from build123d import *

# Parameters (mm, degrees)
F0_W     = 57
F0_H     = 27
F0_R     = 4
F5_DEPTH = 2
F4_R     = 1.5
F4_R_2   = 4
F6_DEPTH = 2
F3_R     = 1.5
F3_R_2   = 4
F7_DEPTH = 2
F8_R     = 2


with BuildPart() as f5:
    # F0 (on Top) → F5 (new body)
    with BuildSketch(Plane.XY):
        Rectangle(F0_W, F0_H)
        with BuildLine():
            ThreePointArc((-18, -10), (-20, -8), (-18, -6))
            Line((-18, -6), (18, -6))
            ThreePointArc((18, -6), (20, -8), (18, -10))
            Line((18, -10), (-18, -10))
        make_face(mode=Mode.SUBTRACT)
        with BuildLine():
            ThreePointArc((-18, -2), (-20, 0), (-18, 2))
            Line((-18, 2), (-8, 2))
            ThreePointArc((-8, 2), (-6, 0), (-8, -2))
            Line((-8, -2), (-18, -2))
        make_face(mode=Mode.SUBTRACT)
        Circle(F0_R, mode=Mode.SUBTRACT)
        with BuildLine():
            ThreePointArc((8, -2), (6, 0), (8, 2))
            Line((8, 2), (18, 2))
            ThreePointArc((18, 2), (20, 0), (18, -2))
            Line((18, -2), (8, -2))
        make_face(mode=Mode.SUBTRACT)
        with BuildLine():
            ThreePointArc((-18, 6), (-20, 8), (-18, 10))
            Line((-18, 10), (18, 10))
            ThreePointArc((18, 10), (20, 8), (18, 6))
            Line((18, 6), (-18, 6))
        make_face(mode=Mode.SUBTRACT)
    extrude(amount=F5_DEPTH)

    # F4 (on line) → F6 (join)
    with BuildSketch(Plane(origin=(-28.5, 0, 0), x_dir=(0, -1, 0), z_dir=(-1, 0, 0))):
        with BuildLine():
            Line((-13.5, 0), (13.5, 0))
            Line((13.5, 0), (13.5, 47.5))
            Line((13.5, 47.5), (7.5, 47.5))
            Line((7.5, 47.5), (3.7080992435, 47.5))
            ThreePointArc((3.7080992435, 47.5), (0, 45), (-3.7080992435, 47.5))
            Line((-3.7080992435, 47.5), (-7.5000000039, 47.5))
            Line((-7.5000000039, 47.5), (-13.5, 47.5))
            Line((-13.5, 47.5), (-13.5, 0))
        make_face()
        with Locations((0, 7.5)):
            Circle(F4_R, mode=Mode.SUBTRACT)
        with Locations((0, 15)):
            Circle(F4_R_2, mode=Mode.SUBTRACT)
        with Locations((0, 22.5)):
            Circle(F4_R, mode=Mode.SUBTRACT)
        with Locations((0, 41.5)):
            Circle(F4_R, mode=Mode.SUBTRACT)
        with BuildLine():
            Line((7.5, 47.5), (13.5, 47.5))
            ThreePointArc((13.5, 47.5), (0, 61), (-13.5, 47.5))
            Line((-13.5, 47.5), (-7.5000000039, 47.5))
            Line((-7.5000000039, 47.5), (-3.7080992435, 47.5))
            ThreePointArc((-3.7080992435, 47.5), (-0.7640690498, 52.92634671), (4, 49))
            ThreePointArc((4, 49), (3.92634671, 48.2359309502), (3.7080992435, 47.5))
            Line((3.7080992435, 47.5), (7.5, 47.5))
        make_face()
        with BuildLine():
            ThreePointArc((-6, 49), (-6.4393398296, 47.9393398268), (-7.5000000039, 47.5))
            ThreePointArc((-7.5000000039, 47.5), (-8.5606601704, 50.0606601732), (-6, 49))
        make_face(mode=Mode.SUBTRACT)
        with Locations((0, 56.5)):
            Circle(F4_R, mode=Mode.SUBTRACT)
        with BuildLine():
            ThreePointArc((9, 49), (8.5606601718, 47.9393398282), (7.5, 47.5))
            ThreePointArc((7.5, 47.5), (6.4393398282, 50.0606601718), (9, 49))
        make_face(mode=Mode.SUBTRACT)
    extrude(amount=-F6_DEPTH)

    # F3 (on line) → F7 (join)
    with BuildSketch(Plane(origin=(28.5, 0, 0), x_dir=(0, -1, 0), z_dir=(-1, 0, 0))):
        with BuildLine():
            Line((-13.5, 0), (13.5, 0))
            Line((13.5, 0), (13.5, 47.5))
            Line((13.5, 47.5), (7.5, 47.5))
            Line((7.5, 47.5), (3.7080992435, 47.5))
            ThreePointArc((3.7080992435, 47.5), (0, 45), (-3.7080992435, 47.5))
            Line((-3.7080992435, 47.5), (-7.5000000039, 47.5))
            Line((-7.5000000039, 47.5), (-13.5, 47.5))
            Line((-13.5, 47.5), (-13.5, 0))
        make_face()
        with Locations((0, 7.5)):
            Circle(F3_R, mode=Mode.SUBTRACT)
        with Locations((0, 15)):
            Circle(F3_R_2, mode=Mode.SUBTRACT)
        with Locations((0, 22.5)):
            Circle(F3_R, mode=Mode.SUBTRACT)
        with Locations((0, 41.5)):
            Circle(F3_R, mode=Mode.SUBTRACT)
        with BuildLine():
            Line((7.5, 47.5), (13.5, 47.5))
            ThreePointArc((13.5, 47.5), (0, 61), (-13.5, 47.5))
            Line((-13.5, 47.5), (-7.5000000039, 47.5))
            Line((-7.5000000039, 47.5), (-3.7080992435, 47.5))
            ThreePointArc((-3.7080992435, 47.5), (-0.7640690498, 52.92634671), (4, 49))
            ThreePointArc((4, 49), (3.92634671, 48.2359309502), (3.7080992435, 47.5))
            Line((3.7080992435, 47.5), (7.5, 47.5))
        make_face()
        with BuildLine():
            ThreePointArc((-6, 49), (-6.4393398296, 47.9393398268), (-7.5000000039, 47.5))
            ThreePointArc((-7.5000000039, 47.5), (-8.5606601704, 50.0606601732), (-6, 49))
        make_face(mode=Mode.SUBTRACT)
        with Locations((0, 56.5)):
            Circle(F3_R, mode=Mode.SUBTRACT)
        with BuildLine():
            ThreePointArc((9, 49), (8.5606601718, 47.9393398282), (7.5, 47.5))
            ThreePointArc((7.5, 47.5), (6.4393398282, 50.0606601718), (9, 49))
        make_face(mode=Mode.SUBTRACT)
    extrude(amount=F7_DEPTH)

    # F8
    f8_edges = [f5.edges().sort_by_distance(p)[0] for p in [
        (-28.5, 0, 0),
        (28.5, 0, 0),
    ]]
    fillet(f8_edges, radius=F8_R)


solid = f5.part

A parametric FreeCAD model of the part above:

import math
import FreeCAD as App
import Part
import Sketcher
Q = App.Units.Quantity


def edges_at(feature, points):
    """Names of the edges that pass closest to the given points."""
    edges = feature.Shape.Edges
    near = lambda p: min(range(len(edges)), key=lambda i: edges[i].distToShape(Part.Vertex(*p))[0])
    return sorted({f"Edge{near(p) + 1}" for p in points})

doc = App.newDocument("Part")
body = doc.addObject("PartDesign::Body", "Body")

sketch1 = body.newObject("Sketcher::SketchObject", "Sketch")
sketch1.AttachmentSupport = (doc.getObject("XY_Plane"), [""])
sketch1.MapMode = "FlatFace"
sketch1.addGeometry(Part.LineSegment(App.Vector(-28.5, 13.5, 0), App.Vector(-28.5, -13.5, 0)), False)
sketch1.addGeometry(Part.LineSegment(App.Vector(-28.5, -13.5, 0), App.Vector(28.5, -13.5, 0)), False)
sketch1.addGeometry(Part.LineSegment(App.Vector(28.5, -13.5, 0), App.Vector(28.5, 13.5, 0)), False)
sketch1.addGeometry(Part.LineSegment(App.Vector(28.5, 13.5, 0), App.Vector(-28.5, 13.5, 0)), False)
sketch1.addGeometry(Part.LineSegment(App.Vector(18, -10, 0), App.Vector(-18, -10, 0)), False)
sketch1.addGeometry(Part.ArcOfCircle(Part.Circle(App.Vector(-18, -8, 0), App.Vector(0, 0, 1), 2), math.radians(90), math.radians(270)), False)
sketch1.addGeometry(Part.LineSegment(App.Vector(-18, -6, 0), App.Vector(18, -6, 0)), False)
sketch1.addGeometry(Part.ArcOfCircle(Part.Circle(App.Vector(18, -8, 0), App.Vector(0, 0, 1), 2), math.radians(-90), math.radians(90)), False)
sketch1.addGeometry(Part.LineSegment(App.Vector(-8, -2, 0), App.Vector(-18, -2, 0)), False)
sketch1.addGeometry(Part.ArcOfCircle(Part.Circle(App.Vector(-18, 0, 0), App.Vector(0, 0, 1), 2), math.radians(90), math.radians(270)), False)
sketch1.addGeometry(Part.LineSegment(App.Vector(-18, 2, 0), App.Vector(-8, 2, 0)), False)
sketch1.addGeometry(Part.ArcOfCircle(Part.Circle(App.Vector(-8, 0, 0), App.Vector(0, 0, 1), 2), math.radians(-90), math.radians(90)), False)
sketch1.addGeometry(Part.Circle(App.Vector(0, 0, 0), App.Vector(0, 0, 1), 4), False)
sketch1.addGeometry(Part.LineSegment(App.Vector(18, -2, 0), App.Vector(8, -2, 0)), False)
sketch1.addGeometry(Part.ArcOfCircle(Part.Circle(App.Vector(8, 0, 0), App.Vector(0, 0, 1), 2), math.radians(90), math.radians(270)), False)
sketch1.addGeometry(Part.LineSegment(App.Vector(8, 2, 0), App.Vector(18, 2, 0)), False)
sketch1.addGeometry(Part.ArcOfCircle(Part.Circle(App.Vector(18, 0, 0), App.Vector(0, 0, 1), 2), math.radians(-90), math.radians(90)), False)
sketch1.addGeometry(Part.LineSegment(App.Vector(18, 6, 0), App.Vector(-18, 6, 0)), False)
sketch1.addGeometry(Part.ArcOfCircle(Part.Circle(App.Vector(-18, 8, 0), App.Vector(0, 0, 1), 2), math.radians(90), math.radians(270)), False)
sketch1.addGeometry(Part.LineSegment(App.Vector(-18, 10, 0), App.Vector(18, 10, 0)), False)
sketch1.addGeometry(Part.ArcOfCircle(Part.Circle(App.Vector(18, 8, 0), App.Vector(0, 0, 1), 2), math.radians(-90), math.radians(90)), False)
sketch1.addConstraint(Sketcher.Constraint("Coincident", 0, 2, 1, 1))
sketch1.addConstraint(Sketcher.Constraint("Coincident", 1, 2, 2, 1))
sketch1.addConstraint(Sketcher.Constraint("Coincident", 2, 2, 3, 1))
sketch1.addConstraint(Sketcher.Constraint("Coincident", 3, 2, 0, 1))
sketch1.addConstraint(Sketcher.Constraint("Tangent", 4, 2, 5, 2))
sketch1.addConstraint(Sketcher.Constraint("Tangent", 5, 1, 6, 1))
sketch1.addConstraint(Sketcher.Constraint("Tangent", 6, 2, 7, 2))
sketch1.addConstraint(Sketcher.Constraint("Tangent", 7, 1, 4, 1))
sketch1.addConstraint(Sketcher.Constraint("Tangent", 8, 2, 9, 2))
sketch1.addConstraint(Sketcher.Constraint("Tangent", 9, 1, 10, 1))
sketch1.addConstraint(Sketcher.Constraint("Tangent", 10, 2, 11, 2))
sketch1.addConstraint(Sketcher.Constraint("Tangent", 11, 1, 8, 1))
sketch1.addConstraint(Sketcher.Constraint("Tangent", 13, 2, 14, 2))
sketch1.addConstraint(Sketcher.Constraint("Tangent", 14, 1, 15, 1))
sketch1.addConstraint(Sketcher.Constraint("Tangent", 15, 2, 16, 2))
sketch1.addConstraint(Sketcher.Constraint("Tangent", 16, 1, 13, 1))
sketch1.addConstraint(Sketcher.Constraint("Tangent", 17, 2, 18, 2))
sketch1.addConstraint(Sketcher.Constraint("Tangent", 18, 1, 19, 1))
sketch1.addConstraint(Sketcher.Constraint("Tangent", 19, 2, 20, 2))
sketch1.addConstraint(Sketcher.Constraint("Tangent", 20, 1, 17, 1))
sketch1.addConstraint(Sketcher.Constraint("Vertical", 0))
sketch1.addConstraint(Sketcher.Constraint("Horizontal", 1))
sketch1.addConstraint(Sketcher.Constraint("Vertical", 2))
sketch1.addConstraint(Sketcher.Constraint("Horizontal", 3))
sketch1.addConstraint(Sketcher.Constraint("Horizontal", 4))
sketch1.addConstraint(Sketcher.Constraint("Horizontal", 6))
sketch1.addConstraint(Sketcher.Constraint("Horizontal", 8))
sketch1.addConstraint(Sketcher.Constraint("Horizontal", 10))
sketch1.addConstraint(Sketcher.Constraint("Horizontal", 13))
sketch1.addConstraint(Sketcher.Constraint("Horizontal", 15))
sketch1.addConstraint(Sketcher.Constraint("Horizontal", 17))
sketch1.addConstraint(Sketcher.Constraint("Horizontal", 19))
sketch1.addConstraint(Sketcher.Constraint("Coincident", 12, 3, -1, 1))
sketch1.addConstraint(Sketcher.Constraint("Equal", 7, 9))
sketch1.addConstraint(Sketcher.Constraint("Equal", 11, 14))
sketch1.addConstraint(Sketcher.Constraint("Equal", 16, 18))
sketch1.addConstraint(Sketcher.Constraint("Symmetric", 11, 3, 14, 3, -1, 1))
sketch1.addConstraint(Sketcher.Constraint("Symmetric", 7, 3, 18, 3, -1, 1))
sketch1.addConstraint(Sketcher.Constraint("Symmetric", 0, 2, 2, 2, -1, 1))
sketch1.addConstraint(Sketcher.Constraint("Symmetric", 9, 3, 16, 3, -2))
sketch1.addConstraint(Sketcher.Constraint("Vertical", 5, 3, 9, 3))
sketch1.addConstraint(Sketcher.Constraint("Vertical", 7, 3, 16, 3))
sketch1.addConstraint(Sketcher.Constraint("Vertical", 16, 3, 20, 3))
sketch1.addConstraint(Sketcher.Constraint("Diameter", 12, Q("8 mm")))
sketch1.addConstraint(Sketcher.Constraint("Radius", 5, Q("2 mm")))
sketch1.addConstraint(Sketcher.Constraint("DistanceX", 1, 1, 1, 2, Q("57 mm")))
sketch1.addConstraint(Sketcher.Constraint("DistanceX", 4, 2, 4, 1, Q("36 mm")))
sketch1.addConstraint(Sketcher.Constraint("DistanceX", 8, 2, 8, 1, Q("10 mm")))
sketch1.addConstraint(Sketcher.Constraint("DistanceY", 0, 2, 0, 1, Q("27 mm")))
sketch1.addConstraint(Sketcher.Constraint("DistanceY", 5, 3, -1, 1, Q("8 mm")))
pad1 = body.newObject("PartDesign::Pad", "Pad")
pad1.Profile = sketch1
pad1.Length = 2

sketch2 = body.newObject("Sketcher::SketchObject", "Sketch001")
sketch2.AttachmentSupport = (doc.getObject("YZ_Plane"), [""])
sketch2.MapMode = "FlatFace"
sketch2.AttachmentOffset = App.Placement(App.Vector(0, 0, -28.5), App.Rotation())
sketch2.addGeometry(Part.LineSegment(App.Vector(13.5, 0, 0), App.Vector(-13.5, 0, 0)), False)
sketch2.addGeometry(Part.LineSegment(App.Vector(-13.5, 0, 0), App.Vector(-13.5, 47.5, 0)), False)
sketch2.addGeometry(Part.ArcOfCircle(Part.Circle(App.Vector(0, 47.5, 0), App.Vector(0, 0, 1), 13.5), math.radians(0), math.radians(180)), False)
sketch2.addGeometry(Part.LineSegment(App.Vector(13.5, 47.5, 0), App.Vector(13.5, 0, 0)), False)
sketch2.addGeometry(Part.Circle(App.Vector(0, 7.5, 0), App.Vector(0, 0, 1), 1.5), False)
sketch2.addGeometry(Part.Circle(App.Vector(0, 15, 0), App.Vector(0, 0, 1), 4), False)
sketch2.addGeometry(Part.Circle(App.Vector(0, 22.5, 0), App.Vector(0, 0, 1), 1.5), False)
sketch2.addGeometry(Part.ArcOfCircle(Part.Circle(App.Vector(7.5, 49, 0), App.Vector(0, 0, 1), 1.5), math.radians(-90), math.radians(180)), False)
sketch2.addGeometry(Part.ArcOfCircle(Part.Circle(App.Vector(7.5, 49, 0), App.Vector(0, 0, 1), 1.5), math.radians(180), math.radians(270)), False)
sketch2.addGeometry(Part.Circle(App.Vector(0, 41.5, 0), App.Vector(0, 0, 1), 1.5), False)
sketch2.addGeometry(Part.ArcOfCircle(Part.Circle(App.Vector(0, 49, 0), App.Vector(0, 0, 1), 4), math.radians(-158), math.radians(-22)), False)
sketch2.addGeometry(Part.ArcOfCircle(Part.Circle(App.Vector(0, 49, 0), App.Vector(0, 0, 1), 4), math.radians(-22), math.radians(180)), False)
sketch2.addGeometry(Part.ArcOfCircle(Part.Circle(App.Vector(0, 49, 0), App.Vector(0, 0, 1), 4), math.radians(180), math.radians(202)), False)
sketch2.addGeometry(Part.Circle(App.Vector(0, 56.5, 0), App.Vector(0, 0, 1), 1.5), False)
sketch2.addGeometry(Part.ArcOfCircle(Part.Circle(App.Vector(-7.5, 49, 0), App.Vector(0, 0, 1), 1.5), math.radians(-90), math.radians(180)), False)
sketch2.addGeometry(Part.ArcOfCircle(Part.Circle(App.Vector(-7.5, 49, 0), App.Vector(0, 0, 1), 1.5), math.radians(180), math.radians(270)), False)
sketch2.addConstraint(Sketcher.Constraint("Coincident", 0, 2, 1, 1))
sketch2.addConstraint(Sketcher.Constraint("Tangent", 1, 2, 2, 2))
sketch2.addConstraint(Sketcher.Constraint("Tangent", 2, 1, 3, 1))
sketch2.addConstraint(Sketcher.Constraint("Coincident", 3, 2, 0, 1))
sketch2.addConstraint(Sketcher.Constraint("Tangent", 7, 1, 8, 2))
sketch2.addConstraint(Sketcher.Constraint("Coincident", 8, 1, 7, 2))
sketch2.addConstraint(Sketcher.Constraint("Tangent", 10, 2, 11, 1))
sketch2.addConstraint(Sketcher.Constraint("Tangent", 11, 2, 12, 1))
sketch2.addConstraint(Sketcher.Constraint("Tangent", 12, 2, 10, 1))
sketch2.addConstraint(Sketcher.Constraint("Tangent", 14, 1, 15, 2))
sketch2.addConstraint(Sketcher.Constraint("Coincident", 15, 1, 14, 2))
sketch2.addConstraint(Sketcher.Constraint("Horizontal", 0))
sketch2.addConstraint(Sketcher.Constraint("Vertical", 1))
sketch2.addConstraint(Sketcher.Constraint("Vertical", 3))
sketch2.addConstraint(Sketcher.Constraint("Equal", 4, 6))
sketch2.addConstraint(Sketcher.Constraint("Equal", 6, 7))
sketch2.addConstraint(Sketcher.Constraint("Equal", 8, 9))
sketch2.addConstraint(Sketcher.Constraint("Equal", 5, 10))
sketch2.addConstraint(Sketcher.Constraint("Equal", 9, 13))
sketch2.addConstraint(Sketcher.Constraint("Equal", 13, 14))
sketch2.addConstraint(Sketcher.Constraint("Symmetric", 0, 2, 3, 2, -1, 1))
sketch2.addConstraint(Sketcher.Constraint("Symmetric", 7, 3, 14, 3, -2))
sketch2.addConstraint(Sketcher.Constraint("Symmetric", 10, 2, 12, 2, -2))
sketch2.addConstraint(Sketcher.Constraint("PointOnObject", 4, 3, -2))
sketch2.addConstraint(Sketcher.Constraint("PointOnObject", 5, 3, -2))
sketch2.addConstraint(Sketcher.Constraint("PointOnObject", 6, 3, -2))
sketch2.addConstraint(Sketcher.Constraint("PointOnObject", 9, 3, -2))
sketch2.addConstraint(Sketcher.Constraint("PointOnObject", 13, 3, -2))
sketch2.addConstraint(Sketcher.Constraint("Horizontal", 8, 3, 10, 3))
sketch2.addConstraint(Sketcher.Constraint("Horizontal", 2, 1, 7, 1))
sketch2.addConstraint(Sketcher.Constraint("Horizontal", 15, 3, 8, 1))
sketch2.addConstraint(Sketcher.Constraint("Horizontal", 7, 1, 10, 2))
sketch2.addConstraint(Sketcher.Constraint("Horizontal", 8, 1, 11, 2))
sketch2.addConstraint(Sketcher.Constraint("Horizontal", 11, 2, 15, 1))
sketch2.addConstraint(Sketcher.Constraint("Vertical", 8, 3, 7, 1))
sketch2.addConstraint(Sketcher.Constraint("Vertical", 15, 3, 14, 1))
sketch2.addConstraint(Sketcher.Constraint("Diameter", 4, Q("3 mm")))
sketch2.addConstraint(Sketcher.Constraint("Diameter", 5, Q("8 mm")))
sketch2.addConstraint(Sketcher.Constraint("Radius", 2, Q("13.5 mm")))
sketch2.addConstraint(Sketcher.Constraint("DistanceY", 1, 1, 1, 2, Q("47.5 mm")))
sketch2.addConstraint(Sketcher.Constraint("DistanceY", -1, 1, 5, 3, Q("15 mm")))
sketch2.addConstraint(Sketcher.Constraint("DistanceX", -1, 1, 8, 1, Q("6 mm")))
sketch2.addConstraint(Sketcher.Constraint("DistanceY", 4, 3, 2, 3, Q("40 mm")))
sketch2.addConstraint(Sketcher.Constraint("DistanceY", 4, 3, 6, 3, Q("15 mm")))
sketch2.addConstraint(Sketcher.Constraint("DistanceY", 9, 3, 2, 3, Q("6 mm")))
sketch2.addConstraint(Sketcher.Constraint("DistanceY", 2, 3, 13, 3, Q("9 mm")))
pad2 = body.newObject("PartDesign::Pad", "Pad001")
pad2.Profile = sketch2
pad2.Length = 2

sketch3 = body.newObject("Sketcher::SketchObject", "Sketch002")
sketch3.AttachmentSupport = (doc.getObject("YZ_Plane"), [""])
sketch3.MapMode = "FlatFace"
sketch3.AttachmentOffset = App.Placement(App.Vector(0, 0, 28.5), App.Rotation())
sketch3.addGeometry(Part.LineSegment(App.Vector(13.5, 0, 0), App.Vector(-13.5, 0, 0)), False)
sketch3.addGeometry(Part.LineSegment(App.Vector(-13.5, 0, 0), App.Vector(-13.5, 47.5, 0)), False)
sketch3.addGeometry(Part.ArcOfCircle(Part.Circle(App.Vector(0, 47.5, 0), App.Vector(0, 0, 1), 13.5), math.radians(0), math.radians(180)), False)
sketch3.addGeometry(Part.LineSegment(App.Vector(13.5, 47.5, 0), App.Vector(13.5, 0, 0)), False)
sketch3.addGeometry(Part.Circle(App.Vector(0, 7.5, 0), App.Vector(0, 0, 1), 1.5), False)
sketch3.addGeometry(Part.Circle(App.Vector(0, 15, 0), App.Vector(0, 0, 1), 4), False)
sketch3.addGeometry(Part.Circle(App.Vector(0, 22.5, 0), App.Vector(0, 0, 1), 1.5), False)
sketch3.addGeometry(Part.ArcOfCircle(Part.Circle(App.Vector(7.5, 49, 0), App.Vector(0, 0, 1), 1.5), math.radians(-90), math.radians(180)), False)
sketch3.addGeometry(Part.ArcOfCircle(Part.Circle(App.Vector(7.5, 49, 0), App.Vector(0, 0, 1), 1.5), math.radians(180), math.radians(270)), False)
sketch3.addGeometry(Part.Circle(App.Vector(0, 41.5, 0), App.Vector(0, 0, 1), 1.5), False)
sketch3.addGeometry(Part.ArcOfCircle(Part.Circle(App.Vector(0, 49, 0), App.Vector(0, 0, 1), 4), math.radians(-158), math.radians(-22)), False)
sketch3.addGeometry(Part.ArcOfCircle(Part.Circle(App.Vector(0, 49, 0), App.Vector(0, 0, 1), 4), math.radians(-22), math.radians(180)), False)
sketch3.addGeometry(Part.ArcOfCircle(Part.Circle(App.Vector(0, 49, 0), App.Vector(0, 0, 1), 4), math.radians(180), math.radians(202)), False)
sketch3.addGeometry(Part.Circle(App.Vector(0, 56.5, 0), App.Vector(0, 0, 1), 1.5), False)
sketch3.addGeometry(Part.ArcOfCircle(Part.Circle(App.Vector(-7.5, 49, 0), App.Vector(0, 0, 1), 1.5), math.radians(-90), math.radians(180)), False)
sketch3.addGeometry(Part.ArcOfCircle(Part.Circle(App.Vector(-7.5, 49, 0), App.Vector(0, 0, 1), 1.5), math.radians(180), math.radians(270)), False)
sketch3.addConstraint(Sketcher.Constraint("Coincident", 0, 2, 1, 1))
sketch3.addConstraint(Sketcher.Constraint("Tangent", 1, 2, 2, 2))
sketch3.addConstraint(Sketcher.Constraint("Tangent", 2, 1, 3, 1))
sketch3.addConstraint(Sketcher.Constraint("Coincident", 3, 2, 0, 1))
sketch3.addConstraint(Sketcher.Constraint("Tangent", 7, 1, 8, 2))
sketch3.addConstraint(Sketcher.Constraint("Coincident", 8, 1, 7, 2))
sketch3.addConstraint(Sketcher.Constraint("Tangent", 10, 2, 11, 1))
sketch3.addConstraint(Sketcher.Constraint("Tangent", 11, 2, 12, 1))
sketch3.addConstraint(Sketcher.Constraint("Tangent", 12, 2, 10, 1))
sketch3.addConstraint(Sketcher.Constraint("Tangent", 14, 1, 15, 2))
sketch3.addConstraint(Sketcher.Constraint("Coincident", 15, 1, 14, 2))
sketch3.addConstraint(Sketcher.Constraint("Horizontal", 0))
sketch3.addConstraint(Sketcher.Constraint("Vertical", 1))
sketch3.addConstraint(Sketcher.Constraint("Vertical", 3))
sketch3.addConstraint(Sketcher.Constraint("Equal", 4, 6))
sketch3.addConstraint(Sketcher.Constraint("Equal", 6, 7))
sketch3.addConstraint(Sketcher.Constraint("Equal", 8, 9))
sketch3.addConstraint(Sketcher.Constraint("Equal", 5, 10))
sketch3.addConstraint(Sketcher.Constraint("Equal", 9, 13))
sketch3.addConstraint(Sketcher.Constraint("Equal", 13, 14))
sketch3.addConstraint(Sketcher.Constraint("Symmetric", 0, 2, 3, 2, -1, 1))
sketch3.addConstraint(Sketcher.Constraint("Symmetric", 7, 3, 14, 3, -2))
sketch3.addConstraint(Sketcher.Constraint("Symmetric", 10, 2, 12, 2, -2))
sketch3.addConstraint(Sketcher.Constraint("PointOnObject", 4, 3, -2))
sketch3.addConstraint(Sketcher.Constraint("PointOnObject", 5, 3, -2))
sketch3.addConstraint(Sketcher.Constraint("PointOnObject", 6, 3, -2))
sketch3.addConstraint(Sketcher.Constraint("PointOnObject", 9, 3, -2))
sketch3.addConstraint(Sketcher.Constraint("PointOnObject", 13, 3, -2))
sketch3.addConstraint(Sketcher.Constraint("Horizontal", 8, 3, 10, 3))
sketch3.addConstraint(Sketcher.Constraint("Horizontal", 2, 1, 7, 1))
sketch3.addConstraint(Sketcher.Constraint("Horizontal", 15, 3, 8, 1))
sketch3.addConstraint(Sketcher.Constraint("Horizontal", 7, 1, 10, 2))
sketch3.addConstraint(Sketcher.Constraint("Horizontal", 8, 1, 11, 2))
sketch3.addConstraint(Sketcher.Constraint("Horizontal", 11, 2, 15, 1))
sketch3.addConstraint(Sketcher.Constraint("Vertical", 8, 3, 7, 1))
sketch3.addConstraint(Sketcher.Constraint("Vertical", 15, 3, 14, 1))
sketch3.addConstraint(Sketcher.Constraint("Diameter", 4, Q("3 mm")))
sketch3.addConstraint(Sketcher.Constraint("Diameter", 5, Q("8 mm")))
sketch3.addConstraint(Sketcher.Constraint("Radius", 2, Q("13.5 mm")))
sketch3.addConstraint(Sketcher.Constraint("DistanceY", 1, 1, 1, 2, Q("47.5 mm")))
sketch3.addConstraint(Sketcher.Constraint("DistanceY", -1, 1, 5, 3, Q("15 mm")))
sketch3.addConstraint(Sketcher.Constraint("DistanceX", -1, 1, 8, 1, Q("6 mm")))
sketch3.addConstraint(Sketcher.Constraint("DistanceY", 4, 3, 2, 3, Q("40 mm")))
sketch3.addConstraint(Sketcher.Constraint("DistanceY", 4, 3, 6, 3, Q("15 mm")))
sketch3.addConstraint(Sketcher.Constraint("DistanceY", 9, 3, 2, 3, Q("6 mm")))
sketch3.addConstraint(Sketcher.Constraint("DistanceY", 2, 3, 13, 3, Q("9 mm")))
pad3 = body.newObject("PartDesign::Pad", "Pad002")
pad3.Profile = sketch3
pad3.Length = 2
pad3.Reversed = True
doc.recompute()

fillet = body.newObject("PartDesign::Fillet", "Fillet")
fillet.Base = (pad3, edges_at(pad3, [(-28.5, 0, 0), (28.5, 0, 0)]))
fillet.Radius = 2

doc.recompute()
